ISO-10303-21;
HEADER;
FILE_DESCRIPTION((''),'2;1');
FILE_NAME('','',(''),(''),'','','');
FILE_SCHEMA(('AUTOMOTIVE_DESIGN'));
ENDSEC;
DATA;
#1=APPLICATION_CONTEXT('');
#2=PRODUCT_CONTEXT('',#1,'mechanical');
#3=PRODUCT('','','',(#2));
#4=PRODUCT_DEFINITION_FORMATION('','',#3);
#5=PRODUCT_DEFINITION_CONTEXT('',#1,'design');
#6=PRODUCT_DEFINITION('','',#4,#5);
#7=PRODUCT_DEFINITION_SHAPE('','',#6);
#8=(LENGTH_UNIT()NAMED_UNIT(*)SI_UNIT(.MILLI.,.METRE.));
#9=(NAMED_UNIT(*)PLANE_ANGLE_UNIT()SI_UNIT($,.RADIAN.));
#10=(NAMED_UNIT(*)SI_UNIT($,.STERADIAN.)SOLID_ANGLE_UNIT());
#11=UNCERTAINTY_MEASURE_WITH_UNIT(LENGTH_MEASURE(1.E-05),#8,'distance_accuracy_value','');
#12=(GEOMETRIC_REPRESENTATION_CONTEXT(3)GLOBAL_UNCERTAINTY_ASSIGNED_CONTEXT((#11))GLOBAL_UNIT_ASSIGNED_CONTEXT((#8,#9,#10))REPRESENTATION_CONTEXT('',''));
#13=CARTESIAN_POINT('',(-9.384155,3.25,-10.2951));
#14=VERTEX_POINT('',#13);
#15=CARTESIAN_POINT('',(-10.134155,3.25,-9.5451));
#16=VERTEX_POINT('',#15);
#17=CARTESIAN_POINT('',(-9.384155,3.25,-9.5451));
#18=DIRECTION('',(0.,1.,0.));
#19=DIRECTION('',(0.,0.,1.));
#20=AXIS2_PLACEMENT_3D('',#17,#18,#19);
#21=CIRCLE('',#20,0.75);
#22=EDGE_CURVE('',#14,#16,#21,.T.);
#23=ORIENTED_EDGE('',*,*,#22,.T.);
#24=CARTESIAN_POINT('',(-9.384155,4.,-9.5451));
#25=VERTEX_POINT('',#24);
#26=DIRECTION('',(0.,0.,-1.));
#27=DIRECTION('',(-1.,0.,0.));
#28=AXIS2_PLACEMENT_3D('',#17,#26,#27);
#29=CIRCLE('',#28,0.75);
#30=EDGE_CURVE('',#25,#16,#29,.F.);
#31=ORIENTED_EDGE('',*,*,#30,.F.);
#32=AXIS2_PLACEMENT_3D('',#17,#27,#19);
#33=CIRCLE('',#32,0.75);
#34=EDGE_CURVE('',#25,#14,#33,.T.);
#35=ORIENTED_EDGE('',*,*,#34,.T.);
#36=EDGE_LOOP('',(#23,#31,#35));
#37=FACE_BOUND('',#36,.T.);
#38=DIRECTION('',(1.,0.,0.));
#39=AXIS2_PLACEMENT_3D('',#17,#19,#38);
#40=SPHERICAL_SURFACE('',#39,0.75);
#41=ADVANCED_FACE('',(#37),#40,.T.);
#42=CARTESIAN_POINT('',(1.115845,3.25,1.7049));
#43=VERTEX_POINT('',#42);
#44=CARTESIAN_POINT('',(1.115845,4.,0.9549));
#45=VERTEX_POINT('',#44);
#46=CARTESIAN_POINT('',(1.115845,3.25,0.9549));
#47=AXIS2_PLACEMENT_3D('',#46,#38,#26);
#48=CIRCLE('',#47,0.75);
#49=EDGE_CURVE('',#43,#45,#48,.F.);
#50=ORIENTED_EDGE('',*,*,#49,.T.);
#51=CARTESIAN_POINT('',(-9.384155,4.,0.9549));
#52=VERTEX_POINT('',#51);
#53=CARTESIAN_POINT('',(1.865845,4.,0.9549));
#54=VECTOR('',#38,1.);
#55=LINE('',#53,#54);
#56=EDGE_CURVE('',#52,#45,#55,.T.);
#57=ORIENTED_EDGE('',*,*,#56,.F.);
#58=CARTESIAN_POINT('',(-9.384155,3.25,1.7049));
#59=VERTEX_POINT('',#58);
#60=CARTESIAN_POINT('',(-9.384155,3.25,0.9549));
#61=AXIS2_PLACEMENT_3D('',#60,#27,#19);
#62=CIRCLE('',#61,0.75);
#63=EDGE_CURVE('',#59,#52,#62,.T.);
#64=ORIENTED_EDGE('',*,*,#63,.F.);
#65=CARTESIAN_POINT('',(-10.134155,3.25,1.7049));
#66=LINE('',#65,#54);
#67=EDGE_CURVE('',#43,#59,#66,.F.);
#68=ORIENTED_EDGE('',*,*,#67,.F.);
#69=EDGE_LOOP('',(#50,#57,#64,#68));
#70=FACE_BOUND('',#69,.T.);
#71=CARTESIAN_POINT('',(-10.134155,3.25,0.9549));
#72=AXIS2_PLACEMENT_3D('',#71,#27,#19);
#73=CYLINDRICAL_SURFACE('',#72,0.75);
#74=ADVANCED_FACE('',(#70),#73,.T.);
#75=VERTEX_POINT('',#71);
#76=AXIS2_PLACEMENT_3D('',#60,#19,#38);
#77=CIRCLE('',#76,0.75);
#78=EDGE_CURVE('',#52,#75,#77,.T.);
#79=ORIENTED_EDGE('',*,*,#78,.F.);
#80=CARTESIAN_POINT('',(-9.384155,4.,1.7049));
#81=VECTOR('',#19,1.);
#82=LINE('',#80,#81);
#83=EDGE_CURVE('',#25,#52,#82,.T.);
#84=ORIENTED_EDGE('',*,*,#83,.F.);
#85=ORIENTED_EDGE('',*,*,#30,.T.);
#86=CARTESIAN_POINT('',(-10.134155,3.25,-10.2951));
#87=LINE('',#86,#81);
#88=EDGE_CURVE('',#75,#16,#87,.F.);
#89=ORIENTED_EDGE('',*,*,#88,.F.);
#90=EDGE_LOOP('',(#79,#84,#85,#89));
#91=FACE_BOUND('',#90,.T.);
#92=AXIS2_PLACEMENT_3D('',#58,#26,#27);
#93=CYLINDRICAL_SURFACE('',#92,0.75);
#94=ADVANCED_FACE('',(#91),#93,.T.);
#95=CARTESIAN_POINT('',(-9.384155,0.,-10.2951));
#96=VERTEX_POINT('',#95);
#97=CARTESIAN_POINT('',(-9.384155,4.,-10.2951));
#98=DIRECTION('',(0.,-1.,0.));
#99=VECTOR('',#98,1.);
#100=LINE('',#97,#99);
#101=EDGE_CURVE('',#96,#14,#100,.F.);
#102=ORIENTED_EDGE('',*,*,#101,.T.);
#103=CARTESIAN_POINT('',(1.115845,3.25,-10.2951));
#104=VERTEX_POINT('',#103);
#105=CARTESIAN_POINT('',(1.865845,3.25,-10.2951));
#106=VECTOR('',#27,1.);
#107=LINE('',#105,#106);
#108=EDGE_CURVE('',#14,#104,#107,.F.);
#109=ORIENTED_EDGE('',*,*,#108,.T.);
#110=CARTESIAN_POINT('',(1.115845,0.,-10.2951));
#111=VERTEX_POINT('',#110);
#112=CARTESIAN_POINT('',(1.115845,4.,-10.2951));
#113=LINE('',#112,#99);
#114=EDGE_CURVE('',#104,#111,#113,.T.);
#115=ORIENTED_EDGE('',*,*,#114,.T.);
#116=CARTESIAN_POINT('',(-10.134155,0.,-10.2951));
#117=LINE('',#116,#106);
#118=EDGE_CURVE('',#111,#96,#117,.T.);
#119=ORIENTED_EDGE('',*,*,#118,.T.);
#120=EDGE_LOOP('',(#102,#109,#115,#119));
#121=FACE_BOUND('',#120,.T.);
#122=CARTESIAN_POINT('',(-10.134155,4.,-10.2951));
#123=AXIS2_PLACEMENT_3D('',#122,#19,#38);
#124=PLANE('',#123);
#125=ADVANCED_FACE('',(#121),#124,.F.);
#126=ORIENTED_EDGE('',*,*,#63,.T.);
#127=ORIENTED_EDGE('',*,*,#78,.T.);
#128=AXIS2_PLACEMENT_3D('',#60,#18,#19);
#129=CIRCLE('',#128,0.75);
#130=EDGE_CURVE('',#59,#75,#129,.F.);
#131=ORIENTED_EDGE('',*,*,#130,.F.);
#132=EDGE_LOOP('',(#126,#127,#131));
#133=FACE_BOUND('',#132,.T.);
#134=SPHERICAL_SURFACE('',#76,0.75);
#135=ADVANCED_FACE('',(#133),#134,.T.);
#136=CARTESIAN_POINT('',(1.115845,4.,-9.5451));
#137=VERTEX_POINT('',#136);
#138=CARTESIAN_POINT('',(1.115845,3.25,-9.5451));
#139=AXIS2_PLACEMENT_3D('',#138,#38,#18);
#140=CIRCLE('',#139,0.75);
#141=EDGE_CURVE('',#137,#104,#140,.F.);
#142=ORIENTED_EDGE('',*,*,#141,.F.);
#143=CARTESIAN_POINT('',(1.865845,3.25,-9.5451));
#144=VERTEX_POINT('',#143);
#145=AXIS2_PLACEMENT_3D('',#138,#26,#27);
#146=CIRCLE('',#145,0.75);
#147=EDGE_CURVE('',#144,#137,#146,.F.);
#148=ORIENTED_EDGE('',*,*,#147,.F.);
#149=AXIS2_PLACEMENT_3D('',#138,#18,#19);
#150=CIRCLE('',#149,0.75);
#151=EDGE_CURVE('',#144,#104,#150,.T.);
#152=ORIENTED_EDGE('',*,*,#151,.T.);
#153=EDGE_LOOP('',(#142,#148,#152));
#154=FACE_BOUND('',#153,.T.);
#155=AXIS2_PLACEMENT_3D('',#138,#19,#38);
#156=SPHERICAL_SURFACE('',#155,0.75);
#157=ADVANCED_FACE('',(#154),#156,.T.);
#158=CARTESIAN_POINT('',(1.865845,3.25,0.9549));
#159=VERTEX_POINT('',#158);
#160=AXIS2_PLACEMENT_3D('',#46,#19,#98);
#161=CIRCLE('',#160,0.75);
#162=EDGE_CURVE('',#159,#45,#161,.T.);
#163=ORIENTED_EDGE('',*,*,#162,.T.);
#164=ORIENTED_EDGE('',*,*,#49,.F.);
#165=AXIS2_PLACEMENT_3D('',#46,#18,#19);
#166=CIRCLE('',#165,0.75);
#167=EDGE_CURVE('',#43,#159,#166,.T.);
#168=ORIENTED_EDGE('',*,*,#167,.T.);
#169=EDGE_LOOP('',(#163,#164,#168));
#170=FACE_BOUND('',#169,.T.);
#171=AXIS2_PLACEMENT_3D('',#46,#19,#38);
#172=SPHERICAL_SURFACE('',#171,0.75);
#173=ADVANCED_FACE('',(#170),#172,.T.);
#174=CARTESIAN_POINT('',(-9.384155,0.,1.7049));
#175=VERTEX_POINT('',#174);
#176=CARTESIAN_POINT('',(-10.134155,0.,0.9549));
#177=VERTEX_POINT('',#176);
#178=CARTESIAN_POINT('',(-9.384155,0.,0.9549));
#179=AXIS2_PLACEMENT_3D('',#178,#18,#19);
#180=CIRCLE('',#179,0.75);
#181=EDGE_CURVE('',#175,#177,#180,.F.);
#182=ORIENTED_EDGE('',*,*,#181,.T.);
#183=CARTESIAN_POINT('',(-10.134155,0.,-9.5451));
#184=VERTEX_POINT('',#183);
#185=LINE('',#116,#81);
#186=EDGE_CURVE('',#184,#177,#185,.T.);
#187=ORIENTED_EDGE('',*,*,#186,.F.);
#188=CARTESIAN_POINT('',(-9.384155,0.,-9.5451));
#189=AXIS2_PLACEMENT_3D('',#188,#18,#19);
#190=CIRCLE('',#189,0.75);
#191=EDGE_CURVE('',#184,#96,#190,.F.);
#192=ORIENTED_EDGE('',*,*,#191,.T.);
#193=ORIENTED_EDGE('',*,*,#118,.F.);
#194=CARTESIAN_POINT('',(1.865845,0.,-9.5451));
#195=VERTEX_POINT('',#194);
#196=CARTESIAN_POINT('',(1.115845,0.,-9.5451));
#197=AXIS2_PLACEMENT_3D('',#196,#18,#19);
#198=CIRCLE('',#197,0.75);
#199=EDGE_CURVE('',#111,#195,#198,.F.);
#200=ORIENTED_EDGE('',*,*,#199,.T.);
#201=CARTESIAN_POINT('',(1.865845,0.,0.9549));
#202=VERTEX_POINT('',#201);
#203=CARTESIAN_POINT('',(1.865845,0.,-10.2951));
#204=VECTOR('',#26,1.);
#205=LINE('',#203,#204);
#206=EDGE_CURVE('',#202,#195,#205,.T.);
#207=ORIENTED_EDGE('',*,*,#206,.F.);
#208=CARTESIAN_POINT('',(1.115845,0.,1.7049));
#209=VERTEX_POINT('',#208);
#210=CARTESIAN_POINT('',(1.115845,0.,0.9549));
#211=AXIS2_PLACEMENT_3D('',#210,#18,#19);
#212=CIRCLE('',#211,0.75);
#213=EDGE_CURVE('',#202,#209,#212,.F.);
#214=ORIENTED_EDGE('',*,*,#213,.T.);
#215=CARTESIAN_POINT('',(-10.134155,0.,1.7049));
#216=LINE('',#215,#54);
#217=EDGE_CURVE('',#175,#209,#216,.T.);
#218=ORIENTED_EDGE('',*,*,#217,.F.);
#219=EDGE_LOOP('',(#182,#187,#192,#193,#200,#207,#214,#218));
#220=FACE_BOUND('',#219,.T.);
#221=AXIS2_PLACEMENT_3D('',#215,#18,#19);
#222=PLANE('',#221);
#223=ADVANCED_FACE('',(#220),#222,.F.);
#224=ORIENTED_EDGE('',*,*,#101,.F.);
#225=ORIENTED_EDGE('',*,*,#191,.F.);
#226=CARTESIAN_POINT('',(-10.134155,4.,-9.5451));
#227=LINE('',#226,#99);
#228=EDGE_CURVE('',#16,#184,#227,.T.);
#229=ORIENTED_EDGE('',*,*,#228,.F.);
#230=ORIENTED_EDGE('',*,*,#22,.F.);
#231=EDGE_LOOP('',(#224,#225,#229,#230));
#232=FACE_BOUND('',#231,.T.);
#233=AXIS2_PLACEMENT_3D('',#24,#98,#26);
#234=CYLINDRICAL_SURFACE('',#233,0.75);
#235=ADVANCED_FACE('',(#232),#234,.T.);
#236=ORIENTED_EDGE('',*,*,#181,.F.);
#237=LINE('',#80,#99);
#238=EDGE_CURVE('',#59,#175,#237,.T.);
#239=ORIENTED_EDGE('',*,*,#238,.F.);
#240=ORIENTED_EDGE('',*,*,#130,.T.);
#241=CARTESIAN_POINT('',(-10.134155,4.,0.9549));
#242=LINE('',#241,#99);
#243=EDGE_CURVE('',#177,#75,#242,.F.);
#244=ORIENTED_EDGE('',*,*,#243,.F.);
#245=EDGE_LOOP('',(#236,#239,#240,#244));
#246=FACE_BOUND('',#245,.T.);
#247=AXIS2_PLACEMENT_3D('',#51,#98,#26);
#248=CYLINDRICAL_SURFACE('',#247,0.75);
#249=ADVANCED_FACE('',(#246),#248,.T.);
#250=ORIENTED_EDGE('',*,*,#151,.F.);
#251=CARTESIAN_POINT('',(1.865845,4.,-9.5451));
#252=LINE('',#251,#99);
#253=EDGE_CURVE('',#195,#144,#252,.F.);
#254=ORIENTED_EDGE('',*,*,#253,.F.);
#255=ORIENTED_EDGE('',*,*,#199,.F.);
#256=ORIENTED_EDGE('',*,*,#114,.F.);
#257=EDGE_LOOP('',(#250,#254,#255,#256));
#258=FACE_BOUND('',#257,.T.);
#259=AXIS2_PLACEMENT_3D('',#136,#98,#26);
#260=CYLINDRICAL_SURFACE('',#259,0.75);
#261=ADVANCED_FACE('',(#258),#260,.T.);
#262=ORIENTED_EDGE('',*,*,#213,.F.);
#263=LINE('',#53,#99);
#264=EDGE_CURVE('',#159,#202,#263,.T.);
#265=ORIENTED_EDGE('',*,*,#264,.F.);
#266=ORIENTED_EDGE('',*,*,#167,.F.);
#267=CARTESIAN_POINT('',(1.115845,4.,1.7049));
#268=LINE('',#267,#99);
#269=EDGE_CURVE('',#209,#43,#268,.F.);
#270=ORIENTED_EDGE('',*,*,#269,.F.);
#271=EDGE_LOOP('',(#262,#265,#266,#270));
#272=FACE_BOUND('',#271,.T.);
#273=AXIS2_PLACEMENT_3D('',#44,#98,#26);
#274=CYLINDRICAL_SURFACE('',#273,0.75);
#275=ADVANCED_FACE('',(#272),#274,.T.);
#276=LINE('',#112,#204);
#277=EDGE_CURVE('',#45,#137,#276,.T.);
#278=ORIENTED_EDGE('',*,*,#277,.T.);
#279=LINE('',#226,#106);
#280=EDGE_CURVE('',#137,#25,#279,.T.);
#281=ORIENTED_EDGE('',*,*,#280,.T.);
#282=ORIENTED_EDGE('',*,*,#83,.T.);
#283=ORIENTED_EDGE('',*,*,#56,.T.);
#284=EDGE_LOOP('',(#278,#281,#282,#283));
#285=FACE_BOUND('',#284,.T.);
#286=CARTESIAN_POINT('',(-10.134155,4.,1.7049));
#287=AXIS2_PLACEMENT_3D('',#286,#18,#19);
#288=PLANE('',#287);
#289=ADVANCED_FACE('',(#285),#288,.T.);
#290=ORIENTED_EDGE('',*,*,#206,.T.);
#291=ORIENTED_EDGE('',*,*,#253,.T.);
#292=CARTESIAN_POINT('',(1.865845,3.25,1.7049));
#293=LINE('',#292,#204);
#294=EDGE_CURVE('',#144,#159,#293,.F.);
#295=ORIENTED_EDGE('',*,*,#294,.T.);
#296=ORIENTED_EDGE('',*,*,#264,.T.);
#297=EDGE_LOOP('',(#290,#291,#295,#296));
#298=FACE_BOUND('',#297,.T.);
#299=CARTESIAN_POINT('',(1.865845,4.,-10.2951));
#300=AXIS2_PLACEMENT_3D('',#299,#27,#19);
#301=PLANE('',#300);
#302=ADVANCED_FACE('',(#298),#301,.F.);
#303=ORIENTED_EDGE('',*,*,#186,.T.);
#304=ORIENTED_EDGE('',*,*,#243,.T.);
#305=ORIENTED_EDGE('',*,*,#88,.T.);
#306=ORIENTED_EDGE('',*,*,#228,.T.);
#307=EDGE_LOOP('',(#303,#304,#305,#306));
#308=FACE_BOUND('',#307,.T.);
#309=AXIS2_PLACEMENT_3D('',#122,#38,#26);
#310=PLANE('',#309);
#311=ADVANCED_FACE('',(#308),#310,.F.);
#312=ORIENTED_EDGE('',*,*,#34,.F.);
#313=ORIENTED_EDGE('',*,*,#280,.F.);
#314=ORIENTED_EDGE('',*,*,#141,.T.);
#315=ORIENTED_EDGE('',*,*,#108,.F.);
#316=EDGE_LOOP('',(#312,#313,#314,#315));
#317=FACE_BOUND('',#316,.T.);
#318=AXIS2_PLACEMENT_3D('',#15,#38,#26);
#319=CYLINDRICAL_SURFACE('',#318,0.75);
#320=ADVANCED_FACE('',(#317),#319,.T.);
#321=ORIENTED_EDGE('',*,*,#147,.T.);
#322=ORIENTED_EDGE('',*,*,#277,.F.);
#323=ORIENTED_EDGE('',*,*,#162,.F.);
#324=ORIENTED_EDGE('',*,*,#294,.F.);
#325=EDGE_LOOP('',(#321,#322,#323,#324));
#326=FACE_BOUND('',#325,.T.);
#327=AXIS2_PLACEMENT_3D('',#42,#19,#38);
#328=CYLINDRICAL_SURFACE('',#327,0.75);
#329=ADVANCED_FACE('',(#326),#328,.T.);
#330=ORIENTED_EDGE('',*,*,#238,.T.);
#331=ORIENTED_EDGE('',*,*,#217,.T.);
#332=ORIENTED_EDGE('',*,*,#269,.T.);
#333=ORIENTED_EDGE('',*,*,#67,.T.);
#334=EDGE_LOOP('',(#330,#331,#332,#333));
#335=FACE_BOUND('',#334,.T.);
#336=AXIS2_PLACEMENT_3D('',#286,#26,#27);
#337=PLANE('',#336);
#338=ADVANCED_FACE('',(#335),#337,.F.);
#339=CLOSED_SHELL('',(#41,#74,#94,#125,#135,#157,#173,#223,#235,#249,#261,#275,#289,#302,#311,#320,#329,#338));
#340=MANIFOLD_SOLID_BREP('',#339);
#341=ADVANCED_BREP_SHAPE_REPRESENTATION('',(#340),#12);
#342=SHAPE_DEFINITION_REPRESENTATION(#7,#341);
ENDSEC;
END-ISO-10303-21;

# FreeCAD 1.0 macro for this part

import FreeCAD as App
import Part
import Sketcher


def edges_at(feature, points):
    """Names of the edges that pass closest to the given points."""
    edges = feature.Shape.Edges
    near = lambda p: min(range(len(edges)), key=lambda i: edges[i].distToShape(Part.Vertex(*p))[0])
    return sorted({f"Edge{near(p) + 1}" for p in points})


def add_polygon(sketch, points):
    """Adds a closed chain of lines whose ends are joined by coincident constraints."""
    first, n = sketch.GeometryCount, len(points)
    for a, b in zip(points, points[1:] + points[:1]):
        sketch.addGeometry(Part.LineSegment(App.Vector(*a, 0), App.Vector(*b, 0)), False)
    for i in range(n):
        sketch.addConstraint(Sketcher.Constraint("Coincident", first + i, 2, first + (i + 1) % n, 1))

doc = App.newDocument("Part")
body = doc.addObject("PartDesign::Body", "Body")

# Sketch on XZ plane
sketch1 = doc.addObject("Sketcher::SketchObject", "Sketch")
body.addObject(sketch1)
sketch1.AttachmentSupport = (doc.XZ_Plane, [""])
sketch1.MapMode = "FlatFace"
add_polygon(sketch1, [(-10, -10), (-10, 2), (2, 2), (2, -10)])  # lines 0-3
sketch1.addConstraint(Sketcher.Constraint("Vertical", 0))
sketch1.addConstraint(Sketcher.Constraint("Horizontal", 1))
sketch1.addConstraint(Sketcher.Constraint("Vertical", 2))
sketch1.addConstraint(Sketcher.Constraint("Horizontal", 3))
sketch1.addConstraint(Sketcher.Constraint("Equal", 3, 0))
sketch1.addConstraint(Sketcher.Constraint("DistanceX", 1, 1, 1, 2, 12.0))
sketch1.addConstraint(Sketcher.Constraint("DistanceY", -1, 1, 0, 2, 1.7049))
sketch1.addConstraint(Sketcher.Constraint("DistanceX", 0, 2, -1, 1, 10.134155))
pad1 = doc.addObject("PartDesign::Pad", "Pad")
body.addObject(pad1)
pad1.Profile = sketch1
pad1.Length = 4
pad1.Reversed = True
doc.recompute()

fillet = doc.addObject("PartDesign::Fillet", "Fillet")
body.addObject(fillet)
fillet.Base = (pad1, edges_at(pad1, [
    (1.866, 4, -4.295),
    (-4.134, 4, -10.295),
    (-10.134, 4, -4.295),
    (-4.134, 4, 1.705),
    (-10.134, 2, -10.295),
    (1.866, 2, -10.295),
    (1.866, 2, 1.705),
    (-10.134, 2, 1.705),
]))
fillet.Radius = 0.75

doc.recompute()
